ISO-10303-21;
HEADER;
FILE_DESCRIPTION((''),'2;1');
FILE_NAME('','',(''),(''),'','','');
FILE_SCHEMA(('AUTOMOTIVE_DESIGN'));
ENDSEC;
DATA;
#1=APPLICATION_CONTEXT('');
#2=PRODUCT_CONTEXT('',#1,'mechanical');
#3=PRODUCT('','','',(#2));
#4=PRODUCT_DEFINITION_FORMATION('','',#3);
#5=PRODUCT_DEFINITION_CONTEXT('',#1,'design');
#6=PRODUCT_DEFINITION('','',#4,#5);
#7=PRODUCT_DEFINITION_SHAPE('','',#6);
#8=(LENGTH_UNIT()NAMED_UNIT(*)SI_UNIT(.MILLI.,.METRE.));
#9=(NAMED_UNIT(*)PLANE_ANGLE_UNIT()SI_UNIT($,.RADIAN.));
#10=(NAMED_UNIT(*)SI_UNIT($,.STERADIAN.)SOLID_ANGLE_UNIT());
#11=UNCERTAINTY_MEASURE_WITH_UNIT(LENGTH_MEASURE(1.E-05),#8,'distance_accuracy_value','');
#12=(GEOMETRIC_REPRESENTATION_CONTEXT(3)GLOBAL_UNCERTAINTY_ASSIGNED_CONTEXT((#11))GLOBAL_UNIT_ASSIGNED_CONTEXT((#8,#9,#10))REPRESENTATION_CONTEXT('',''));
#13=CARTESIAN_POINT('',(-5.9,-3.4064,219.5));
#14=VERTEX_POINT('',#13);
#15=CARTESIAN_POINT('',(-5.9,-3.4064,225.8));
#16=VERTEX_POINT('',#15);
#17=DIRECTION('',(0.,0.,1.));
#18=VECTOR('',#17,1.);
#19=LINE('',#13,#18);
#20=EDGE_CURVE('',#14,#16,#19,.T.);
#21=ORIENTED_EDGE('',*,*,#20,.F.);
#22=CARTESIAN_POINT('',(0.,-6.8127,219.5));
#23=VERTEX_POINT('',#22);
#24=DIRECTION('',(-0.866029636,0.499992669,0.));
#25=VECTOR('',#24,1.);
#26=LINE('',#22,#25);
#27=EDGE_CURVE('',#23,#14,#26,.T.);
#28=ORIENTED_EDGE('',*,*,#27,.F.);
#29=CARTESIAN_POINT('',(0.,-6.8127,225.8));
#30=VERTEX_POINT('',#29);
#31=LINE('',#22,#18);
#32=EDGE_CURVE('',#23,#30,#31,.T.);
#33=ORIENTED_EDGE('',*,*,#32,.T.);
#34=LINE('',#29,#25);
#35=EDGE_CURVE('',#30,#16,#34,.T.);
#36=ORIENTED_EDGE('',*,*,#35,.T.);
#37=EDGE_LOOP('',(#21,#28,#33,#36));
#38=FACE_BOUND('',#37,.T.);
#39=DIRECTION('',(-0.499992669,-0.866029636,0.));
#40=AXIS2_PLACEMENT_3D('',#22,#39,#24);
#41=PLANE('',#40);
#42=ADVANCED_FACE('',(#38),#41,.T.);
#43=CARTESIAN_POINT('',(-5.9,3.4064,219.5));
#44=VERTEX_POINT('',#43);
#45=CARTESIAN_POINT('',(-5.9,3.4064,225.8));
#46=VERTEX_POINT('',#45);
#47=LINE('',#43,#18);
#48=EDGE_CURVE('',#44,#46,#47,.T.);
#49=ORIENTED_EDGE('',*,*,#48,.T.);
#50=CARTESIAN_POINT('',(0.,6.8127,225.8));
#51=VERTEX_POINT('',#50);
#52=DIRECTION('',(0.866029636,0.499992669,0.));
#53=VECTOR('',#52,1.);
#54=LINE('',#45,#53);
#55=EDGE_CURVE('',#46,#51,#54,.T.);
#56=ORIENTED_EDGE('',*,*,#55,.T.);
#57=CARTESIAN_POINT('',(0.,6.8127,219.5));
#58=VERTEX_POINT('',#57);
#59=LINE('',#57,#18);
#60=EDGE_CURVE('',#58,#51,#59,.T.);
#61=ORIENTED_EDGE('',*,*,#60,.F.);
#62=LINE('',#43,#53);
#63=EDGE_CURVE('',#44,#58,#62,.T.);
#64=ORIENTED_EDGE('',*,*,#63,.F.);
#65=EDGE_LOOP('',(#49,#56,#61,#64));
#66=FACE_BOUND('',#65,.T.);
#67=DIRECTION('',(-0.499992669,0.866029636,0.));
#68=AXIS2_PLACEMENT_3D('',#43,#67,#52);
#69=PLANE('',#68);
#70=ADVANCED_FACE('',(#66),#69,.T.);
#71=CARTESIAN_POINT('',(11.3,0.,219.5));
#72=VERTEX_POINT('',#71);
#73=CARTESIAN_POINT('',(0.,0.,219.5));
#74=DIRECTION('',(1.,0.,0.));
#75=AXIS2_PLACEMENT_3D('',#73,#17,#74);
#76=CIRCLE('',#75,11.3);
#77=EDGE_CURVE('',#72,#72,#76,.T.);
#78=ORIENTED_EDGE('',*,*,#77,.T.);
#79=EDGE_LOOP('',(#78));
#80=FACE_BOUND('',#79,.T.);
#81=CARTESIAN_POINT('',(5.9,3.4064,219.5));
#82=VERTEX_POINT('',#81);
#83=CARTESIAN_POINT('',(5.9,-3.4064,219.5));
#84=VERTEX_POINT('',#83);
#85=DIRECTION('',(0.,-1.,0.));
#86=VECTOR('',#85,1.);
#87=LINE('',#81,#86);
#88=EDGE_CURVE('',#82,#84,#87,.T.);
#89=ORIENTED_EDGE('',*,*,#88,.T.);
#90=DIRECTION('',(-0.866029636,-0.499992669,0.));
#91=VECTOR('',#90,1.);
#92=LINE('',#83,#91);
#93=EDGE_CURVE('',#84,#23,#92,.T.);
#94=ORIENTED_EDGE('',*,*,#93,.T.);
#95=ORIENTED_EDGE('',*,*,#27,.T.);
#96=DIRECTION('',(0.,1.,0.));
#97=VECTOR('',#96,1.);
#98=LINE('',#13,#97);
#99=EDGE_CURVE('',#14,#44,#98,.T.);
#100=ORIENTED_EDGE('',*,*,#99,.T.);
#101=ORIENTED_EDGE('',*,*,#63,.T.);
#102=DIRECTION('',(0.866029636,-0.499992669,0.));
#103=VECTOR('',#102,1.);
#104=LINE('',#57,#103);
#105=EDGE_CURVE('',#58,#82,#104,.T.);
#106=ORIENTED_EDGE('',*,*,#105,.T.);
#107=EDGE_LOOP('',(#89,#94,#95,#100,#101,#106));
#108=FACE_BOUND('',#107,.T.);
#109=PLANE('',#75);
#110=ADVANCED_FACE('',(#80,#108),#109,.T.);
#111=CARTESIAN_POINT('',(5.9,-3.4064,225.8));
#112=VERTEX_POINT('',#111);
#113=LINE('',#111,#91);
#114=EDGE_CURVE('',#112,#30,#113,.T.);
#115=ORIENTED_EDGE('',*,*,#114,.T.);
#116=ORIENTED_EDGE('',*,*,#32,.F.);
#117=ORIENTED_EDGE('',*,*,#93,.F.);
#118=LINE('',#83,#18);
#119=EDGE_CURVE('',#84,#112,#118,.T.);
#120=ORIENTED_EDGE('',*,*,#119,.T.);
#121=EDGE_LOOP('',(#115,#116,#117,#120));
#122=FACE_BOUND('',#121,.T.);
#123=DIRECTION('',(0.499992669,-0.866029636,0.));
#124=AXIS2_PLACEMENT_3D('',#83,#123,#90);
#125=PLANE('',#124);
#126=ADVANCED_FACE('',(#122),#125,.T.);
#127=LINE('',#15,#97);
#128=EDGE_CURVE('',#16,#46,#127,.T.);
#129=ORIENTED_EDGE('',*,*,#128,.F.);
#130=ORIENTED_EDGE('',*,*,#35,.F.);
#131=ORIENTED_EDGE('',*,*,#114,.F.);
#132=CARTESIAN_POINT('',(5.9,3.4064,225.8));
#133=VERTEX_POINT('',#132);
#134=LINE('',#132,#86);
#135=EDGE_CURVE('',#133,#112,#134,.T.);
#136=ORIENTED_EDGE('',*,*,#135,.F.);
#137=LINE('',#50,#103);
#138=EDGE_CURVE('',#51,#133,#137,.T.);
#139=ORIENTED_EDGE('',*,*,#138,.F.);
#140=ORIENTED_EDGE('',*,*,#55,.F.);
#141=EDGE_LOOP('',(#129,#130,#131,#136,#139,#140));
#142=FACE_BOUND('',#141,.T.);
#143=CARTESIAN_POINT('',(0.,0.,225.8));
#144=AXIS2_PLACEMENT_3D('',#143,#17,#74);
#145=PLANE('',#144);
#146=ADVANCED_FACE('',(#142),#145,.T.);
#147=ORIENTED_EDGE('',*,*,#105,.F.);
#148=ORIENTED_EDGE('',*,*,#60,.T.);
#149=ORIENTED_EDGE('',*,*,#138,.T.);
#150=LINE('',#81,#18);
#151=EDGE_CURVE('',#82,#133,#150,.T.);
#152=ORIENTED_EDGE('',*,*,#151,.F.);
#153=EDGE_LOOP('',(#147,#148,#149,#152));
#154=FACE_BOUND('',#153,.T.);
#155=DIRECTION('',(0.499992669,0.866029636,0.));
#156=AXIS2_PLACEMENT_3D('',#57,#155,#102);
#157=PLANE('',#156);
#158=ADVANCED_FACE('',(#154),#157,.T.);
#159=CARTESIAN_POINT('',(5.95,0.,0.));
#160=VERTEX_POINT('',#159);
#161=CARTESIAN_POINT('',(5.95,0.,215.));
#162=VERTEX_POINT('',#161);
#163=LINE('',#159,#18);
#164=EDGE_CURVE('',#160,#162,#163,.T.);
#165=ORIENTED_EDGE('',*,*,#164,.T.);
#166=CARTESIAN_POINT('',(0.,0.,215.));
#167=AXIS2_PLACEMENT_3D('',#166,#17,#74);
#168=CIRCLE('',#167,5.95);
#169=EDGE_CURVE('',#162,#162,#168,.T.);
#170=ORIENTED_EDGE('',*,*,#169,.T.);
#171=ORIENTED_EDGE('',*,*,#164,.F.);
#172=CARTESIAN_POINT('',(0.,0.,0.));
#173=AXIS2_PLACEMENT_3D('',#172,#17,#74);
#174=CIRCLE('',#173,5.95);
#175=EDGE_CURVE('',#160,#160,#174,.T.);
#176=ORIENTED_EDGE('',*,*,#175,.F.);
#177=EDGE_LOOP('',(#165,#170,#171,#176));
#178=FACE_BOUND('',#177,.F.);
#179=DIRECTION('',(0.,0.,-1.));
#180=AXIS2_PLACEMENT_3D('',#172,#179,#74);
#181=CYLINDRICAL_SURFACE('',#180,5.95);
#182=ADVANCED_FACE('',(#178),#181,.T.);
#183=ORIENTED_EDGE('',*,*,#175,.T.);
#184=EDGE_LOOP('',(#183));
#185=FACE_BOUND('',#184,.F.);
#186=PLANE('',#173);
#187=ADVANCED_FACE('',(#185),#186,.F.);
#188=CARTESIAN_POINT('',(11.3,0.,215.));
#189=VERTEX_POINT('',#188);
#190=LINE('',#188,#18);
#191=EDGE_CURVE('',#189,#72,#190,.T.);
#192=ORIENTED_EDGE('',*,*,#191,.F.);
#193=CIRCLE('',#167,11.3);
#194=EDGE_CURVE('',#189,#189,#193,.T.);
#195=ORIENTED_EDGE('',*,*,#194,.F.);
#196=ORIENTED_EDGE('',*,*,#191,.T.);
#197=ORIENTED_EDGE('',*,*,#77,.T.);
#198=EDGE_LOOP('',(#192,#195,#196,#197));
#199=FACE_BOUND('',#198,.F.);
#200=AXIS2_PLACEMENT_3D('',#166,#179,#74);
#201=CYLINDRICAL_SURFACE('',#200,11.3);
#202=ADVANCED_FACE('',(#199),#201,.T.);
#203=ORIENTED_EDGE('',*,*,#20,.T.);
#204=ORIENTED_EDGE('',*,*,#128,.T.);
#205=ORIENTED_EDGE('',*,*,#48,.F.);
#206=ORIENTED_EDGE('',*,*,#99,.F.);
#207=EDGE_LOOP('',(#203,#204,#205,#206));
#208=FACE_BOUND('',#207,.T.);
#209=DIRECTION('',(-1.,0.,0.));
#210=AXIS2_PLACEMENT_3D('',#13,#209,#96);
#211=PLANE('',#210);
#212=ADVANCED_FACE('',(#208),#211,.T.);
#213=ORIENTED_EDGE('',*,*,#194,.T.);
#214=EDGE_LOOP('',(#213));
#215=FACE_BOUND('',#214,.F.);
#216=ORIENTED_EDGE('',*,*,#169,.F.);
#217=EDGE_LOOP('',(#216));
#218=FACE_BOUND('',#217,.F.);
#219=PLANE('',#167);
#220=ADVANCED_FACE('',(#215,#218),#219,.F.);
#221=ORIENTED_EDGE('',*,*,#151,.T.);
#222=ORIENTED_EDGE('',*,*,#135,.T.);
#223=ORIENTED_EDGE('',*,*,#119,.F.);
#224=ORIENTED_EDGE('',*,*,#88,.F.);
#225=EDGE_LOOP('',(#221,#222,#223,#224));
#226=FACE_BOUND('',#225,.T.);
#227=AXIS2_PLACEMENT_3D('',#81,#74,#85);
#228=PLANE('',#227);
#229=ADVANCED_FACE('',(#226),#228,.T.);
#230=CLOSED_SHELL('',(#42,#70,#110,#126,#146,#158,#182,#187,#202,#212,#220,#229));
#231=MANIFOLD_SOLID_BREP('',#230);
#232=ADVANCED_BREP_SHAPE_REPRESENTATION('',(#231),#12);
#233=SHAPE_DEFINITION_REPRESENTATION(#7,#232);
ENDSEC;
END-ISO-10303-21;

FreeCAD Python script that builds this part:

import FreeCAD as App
import Part
import Sketcher
Q = App.Units.Quantity


def add_polygon(sketch, points):
    """Adds a closed chain of lines whose ends are joined by coincident constraints."""
    first, n = sketch.GeometryCount, len(points)
    for a, b in zip(points, points[1:] + points[:1]):
        sketch.addGeometry(Part.LineSegment(App.Vector(*a, 0), App.Vector(*b, 0)), False)
    for i in range(n):
        sketch.addConstraint(Sketcher.Constraint("Coincident", first + i, 2, first + (i + 1) % n, 1))

doc = App.newDocument("Part")
body = doc.addObject("PartDesign::Body", "Body")

# Sketch on XY plane
sketch1 = doc.addObject("Sketcher::SketchObject", "Sketch")
body.addObject(sketch1)
sketch1.AttachmentSupport = (doc.XY_Plane, [""])
sketch1.MapMode = "FlatFace"
sketch1.addGeometry(Part.Circle(App.Vector(0, 0, 0), App.Vector(0, 0, 1), 6), False)
sketch1.addConstraint(Sketcher.Constraint("Coincident", 0, 3, -1, 1))
sketch1.addConstraint(Sketcher.Constraint("Diameter", 0, Q("11.9 mm")))
pad1 = doc.addObject("PartDesign::Pad", "Pad")
body.addObject(pad1)
pad1.Profile = sketch1
pad1.Length = 215

# Sketch on XY plane
sketch2 = doc.addObject("Sketcher::SketchObject", "Sketch001")
body.addObject(sketch2)
sketch2.AttachmentSupport = (doc.XY_Plane, [""])
sketch2.MapMode = "FlatFace"
sketch2.AttachmentOffset = App.Placement(App.Vector(0, 0, 215), App.Rotation())
sketch2.addGeometry(Part.Circle(App.Vector(0, 0, 0), App.Vector(0, 0, 1), 11), False)
sketch2.addConstraint(Sketcher.Constraint("Coincident", 0, 3, -1, 1))
sketch2.addConstraint(Sketcher.Constraint("Diameter", 0, Q("22.6 mm")))
pad2 = doc.addObject("PartDesign::Pad", "Pad001")
body.addObject(pad2)
pad2.Profile = sketch2
pad2.Length = 4.5

# Sketch on XY plane
sketch3 = doc.addObject("Sketcher::SketchObject", "Sketch002")
body.addObject(sketch3)
sketch3.AttachmentSupport = (doc.XY_Plane, [""])
sketch3.MapMode = "FlatFace"
sketch3.AttachmentOffset = App.Placement(App.Vector(0, 0, 219.5), App.Rotation())
add_polygon(sketch3, [(0, -7), (6, -3), (6, 3), (0, 7), (-6, 3), (-6, -3)])  # lines 0-5
sketch3.addConstraint(Sketcher.Constraint("Vertical", 1))
sketch3.addConstraint(Sketcher.Constraint("Vertical", 4))
sketch3.addConstraint(Sketcher.Constraint("Symmetric", 0, 2, 3, 2, -1, 1))
sketch3.addConstraint(Sketcher.Constraint("Symmetric", 2, 2, 5, 2, -1, 1))
sketch3.addConstraint(Sketcher.Constraint("PointOnObject", 2, 2, -2))
sketch3.addConstraint(Sketcher.Constraint("Parallel", 2, 5))
sketch3.addConstraint(Sketcher.Constraint("Horizontal", 1, 2, 3, 2))
sketch3.addConstraint(Sketcher.Constraint("DistanceX", 3, 2, 1, 2, Q("11.8 mm")))
sketch3.addConstraint(Sketcher.Constraint("Angle", 0, Q("29.9995 deg")))
sketch3.addConstraint(Sketcher.Constraint("DistanceY", 1, 1, 1, 2, Q("6.8128 mm")))
pad3 = doc.addObject("PartDesign::Pad", "Pad002")
body.addObject(pad3)
pad3.Profile = sketch3
pad3.Length = 6.3

doc.recompute()
